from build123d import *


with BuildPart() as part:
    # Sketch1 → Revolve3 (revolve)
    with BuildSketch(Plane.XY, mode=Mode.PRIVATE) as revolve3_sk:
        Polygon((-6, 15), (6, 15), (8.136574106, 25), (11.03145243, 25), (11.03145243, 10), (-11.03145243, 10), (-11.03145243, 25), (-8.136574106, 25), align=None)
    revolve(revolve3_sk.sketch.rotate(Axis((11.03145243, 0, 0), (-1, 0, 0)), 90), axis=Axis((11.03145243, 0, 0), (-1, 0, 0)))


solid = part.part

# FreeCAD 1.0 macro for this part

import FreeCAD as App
import Part
import Sketcher

V = App.Vector

doc = App.newDocument("Part")
body = doc.addObject("PartDesign::Body", "Body")

# Sketch on XY plane
sketch1 = doc.addObject("Sketcher::SketchObject", "Sketch")
body.addObject(sketch1)
sketch1.AttachmentSupport = (doc.XY_Plane, [""])
sketch1.MapMode = "FlatFace"
sketch1.addGeometry(Part.LineSegment(V(6, 15, 0), V(-6, 15, 0)), False)
sketch1.addGeometry(Part.LineSegment(V(-6, 15, 0), V(-8.136574, 25, 0)), False)
sketch1.addGeometry(Part.LineSegment(V(-8.136574, 25, 0), V(-11.031452, 25, 0)), False)
sketch1.addGeometry(Part.LineSegment(V(-11.031452, 25, 0), V(-11.031452, 10, 0)), False)
sketch1.addGeometry(Part.LineSegment(V(-11.031452, 10, 0), V(11.031452, 10, 0)), False)
sketch1.addGeometry(Part.LineSegment(V(11.031452, 10, 0), V(11.031452, 25, 0)), False)
sketch1.addGeometry(Part.LineSegment(V(11.031452, 25, 0), V(8.136574, 25, 0)), False)
sketch1.addGeometry(Part.LineSegment(V(8.136574, 25, 0), V(6, 15, 0)), False)
sketch1.addConstraint(Sketcher.Constraint("Coincident", 0, 2, 1, 1))
sketch1.addConstraint(Sketcher.Constraint("Coincident", 1, 2, 2, 1))
sketch1.addConstraint(Sketcher.Constraint("Coincident", 2, 2, 3, 1))
sketch1.addConstraint(Sketcher.Constraint("Coincident", 3, 2, 4, 1))
sketch1.addConstraint(Sketcher.Constraint("Coincident", 4, 2, 5, 1))
sketch1.addConstraint(Sketcher.Constraint("Coincident", 5, 2, 6, 1))
sketch1.addConstraint(Sketcher.Constraint("Coincident", 6, 2, 7, 1))
sketch1.addConstraint(Sketcher.Constraint("Coincident", 7, 2, 0, 1))
sketch1.addConstraint(Sketcher.Constraint("Horizontal", 0))
sketch1.addConstraint(Sketcher.Constraint("Horizontal", 2))
sketch1.addConstraint(Sketcher.Constraint("Vertical", 3))
sketch1.addConstraint(Sketcher.Constraint("Horizontal", 4))
sketch1.addConstraint(Sketcher.Constraint("Vertical", 5))
sketch1.addConstraint(Sketcher.Constraint("Horizontal", 6))
sketch1.addConstraint(Sketcher.Constraint("Symmetric", 2, 2, 5, 2, -2))
sketch1.addConstraint(Sketcher.Constraint("Equal", 2, 6))
sketch1.addConstraint(Sketcher.Constraint("Equal", 1, 7))
sketch1.addConstraint(Sketcher.Constraint("DistanceX", 0, 2, 0, 1, 12.0))
sketch1.addConstraint(Sketcher.Constraint("DistanceY", 3, 2, 3, 1, 15.0))
sketch1.addConstraint(Sketcher.Constraint("DistanceY", -1, 1, 0, 2, 15.0))
sketch1.addConstraint(Sketcher.Constraint("DistanceY", -1, 1, 1, 2, 25.0))
sketch1.addConstraint(Sketcher.Constraint("Distance", 1, 10.2257))
sketch1.addConstraint(Sketcher.Constraint("DistanceX", 2, 2, 2, 1, 2.894878))
revolution = doc.addObject("PartDesign::Revolution", "Revolution")
body.addObject(revolution)
revolution.Profile = sketch1
revolution.ReferenceAxis = (sketch1, ["H_Axis"])
revolution.Angle = 360

doc.recompute()
